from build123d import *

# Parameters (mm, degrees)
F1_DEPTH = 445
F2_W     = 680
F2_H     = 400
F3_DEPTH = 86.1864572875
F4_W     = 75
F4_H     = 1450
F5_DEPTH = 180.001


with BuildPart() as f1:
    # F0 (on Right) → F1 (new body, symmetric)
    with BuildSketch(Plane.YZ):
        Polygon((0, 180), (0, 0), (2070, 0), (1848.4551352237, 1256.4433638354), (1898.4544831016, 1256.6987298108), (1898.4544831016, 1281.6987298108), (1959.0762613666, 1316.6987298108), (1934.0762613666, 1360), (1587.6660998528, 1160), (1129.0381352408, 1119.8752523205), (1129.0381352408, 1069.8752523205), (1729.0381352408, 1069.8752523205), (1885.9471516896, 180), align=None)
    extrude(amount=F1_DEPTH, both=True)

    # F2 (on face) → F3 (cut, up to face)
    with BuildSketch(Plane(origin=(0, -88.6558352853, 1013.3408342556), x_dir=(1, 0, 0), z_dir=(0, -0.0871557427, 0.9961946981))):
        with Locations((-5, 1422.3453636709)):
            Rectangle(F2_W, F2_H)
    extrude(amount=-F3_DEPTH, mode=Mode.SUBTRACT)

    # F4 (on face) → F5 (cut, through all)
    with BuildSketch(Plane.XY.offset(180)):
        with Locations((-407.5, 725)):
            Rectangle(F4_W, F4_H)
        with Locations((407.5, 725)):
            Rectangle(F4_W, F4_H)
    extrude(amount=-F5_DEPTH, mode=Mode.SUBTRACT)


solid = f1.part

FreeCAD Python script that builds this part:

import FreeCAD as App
import Part
import Sketcher
Q = App.Units.Quantity

doc = App.newDocument("Part")
body = doc.addObject("PartDesign::Body", "Body")

# Sketch on YZ plane
sketch1 = body.newObject("Sketcher::SketchObject", "Sketch")
sketch1.AttachmentSupport = (doc.getObject("YZ_Plane"), [""])
sketch1.MapMode = "FlatFace"
sketch1.addGeometry([
    Part.LineSegment(App.Vector(0, 180, 0), App.Vector(0, 0, 0)),  # 0
    Part.LineSegment(App.Vector(0, 0, 0), App.Vector(2070, 0, 0)),  # 1
    Part.LineSegment(App.Vector(2070, 0, 0), App.Vector(1848, 1256, 0)),  # 2
    Part.LineSegment(App.Vector(1848, 1256, 0), App.Vector(1898, 1257, 0)),  # 3
    Part.LineSegment(App.Vector(1898, 1257, 0), App.Vector(1898, 1282, 0)),  # 4
    Part.LineSegment(App.Vector(1898, 1282, 0), App.Vector(1959, 1317, 0)),  # 5
    Part.LineSegment(App.Vector(1959, 1317, 0), App.Vector(1934, 1360, 0)),  # 6
    Part.LineSegment(App.Vector(1934, 1360, 0), App.Vector(1588, 1160, 0)),  # 7
    Part.LineSegment(App.Vector(1588, 1160, 0), App.Vector(1129, 1120, 0)),  # 8
    Part.LineSegment(App.Vector(1129, 1120, 0), App.Vector(1129, 1070, 0)),  # 9
    Part.LineSegment(App.Vector(1129, 1070, 0), App.Vector(1729, 1070, 0)),  # 10
    Part.LineSegment(App.Vector(1729, 1070, 0), App.Vector(1886, 180, 0)),  # 11
    Part.LineSegment(App.Vector(1886, 180, 0), App.Vector(0, 180, 0)),  # 12
], False)
sketch1.addConstraint([
    Sketcher.Constraint("Coincident", 0, 2, 1, 1),
    Sketcher.Constraint("Coincident", 1, 2, 2, 1),
    Sketcher.Constraint("Coincident", 2, 2, 3, 1),
    Sketcher.Constraint("Coincident", 3, 2, 4, 1),
    Sketcher.Constraint("Coincident", 4, 2, 5, 1),
    Sketcher.Constraint("Coincident", 5, 2, 6, 1),
    Sketcher.Constraint("Coincident", 6, 2, 7, 1),
    Sketcher.Constraint("Coincident", 7, 2, 8, 1),
    Sketcher.Constraint("Coincident", 8, 2, 9, 1),
    Sketcher.Constraint("Coincident", 9, 2, 10, 1),
    Sketcher.Constraint("Coincident", 10, 2, 11, 1),
    Sketcher.Constraint("Coincident", 11, 2, 12, 1),
    Sketcher.Constraint("Coincident", 12, 2, 0, 1),
    Sketcher.Constraint("Vertical", 0),
    Sketcher.Constraint("Horizontal", 1),
    Sketcher.Constraint("Vertical", 4),
    Sketcher.Constraint("Vertical", 9),
    Sketcher.Constraint("Horizontal", 10),
    Sketcher.Constraint("Horizontal", 12),
    Sketcher.Constraint("Coincident", 0, 2, -1, 1),
    Sketcher.Constraint("Perpendicular", 5, 6),
    Sketcher.Constraint("Perpendicular", 6, 7),
    Sketcher.Constraint("Parallel", 2, 11),
    Sketcher.Constraint("Equal", 3, 6),
    Sketcher.Constraint("DistanceX", 1, 1, 1, 2, Q("2070 mm")),
    Sketcher.Constraint("DistanceX", 10, 1, 10, 2, Q("600 mm")),
    Sketcher.Constraint("DistanceY", 0, 2, 0, 1, Q("180 mm")),
    Sketcher.Constraint("DistanceY", 4, 1, 4, 2, Q("25 mm")),
    Sketcher.Constraint("DistanceY", 9, 2, 9, 1, Q("50 mm")),
    Sketcher.Constraint("Angle", 2, Q("100 deg")),
    Sketcher.Constraint("Angle", 5, Q("30 deg")),
    Sketcher.Constraint("Angle", 8, Q("-175 deg")),
    Sketcher.Constraint("Distance", 3, Q("50 mm")),
    Sketcher.Constraint("Distance", 5, Q("70 mm")),
    Sketcher.Constraint("Distance", 7, Q("400 mm")),
    Sketcher.Constraint("DistanceY", -1, 1, 6, 2, Q("1360 mm")),
    Sketcher.Constraint("DistanceX", 8, 2, 2, 2, Q("719.417 mm")),
    Sketcher.Constraint("DistanceX", 12, 2, 12, 1, Q("1885.947152 mm")),
])
pad1 = body.newObject("PartDesign::Pad", "Pad")
pad1.Profile = sketch1
pad1.Length = 890
pad1.Midplane = True

# Sketch on an angled plane
sketch2 = body.newObject("Sketcher::SketchObject", "Sketch001")
sketch2.Placement = App.Placement(App.Vector(0, -88.655835, 1013.340834), App.Rotation(App.Vector(1, 0, 0), App.Vector(0, 0.996194698, 0.087155743), App.Vector(0, -0.087155743, 0.996194698), "ZXY"))
sketch2.addGeometry([
    Part.LineSegment(App.Vector(-345, 1622, 0), App.Vector(-345, 1222, 0)),
    Part.LineSegment(App.Vector(-345, 1222, 0), App.Vector(335, 1222, 0)),
    Part.LineSegment(App.Vector(335, 1222, 0), App.Vector(335, 1622, 0)),
    Part.LineSegment(App.Vector(335, 1622, 0), App.Vector(-345, 1622, 0)),
], False)
sketch2.addConstraint([
    Sketcher.Constraint("Coincident", 0, 2, 1, 1),
    Sketcher.Constraint("Coincident", 1, 2, 2, 1),
    Sketcher.Constraint("Coincident", 2, 2, 3, 1),
    Sketcher.Constraint("Coincident", 3, 2, 0, 1),
    Sketcher.Constraint("Vertical", 0),
    Sketcher.Constraint("Horizontal", 1),
    Sketcher.Constraint("Vertical", 2),
    Sketcher.Constraint("Horizontal", 3),
    Sketcher.Constraint("DistanceX", 1, 1, 1, 2, Q("680 mm")),
    Sketcher.Constraint("DistanceY", 0, 2, 0, 1, Q("400 mm")),
    Sketcher.Constraint("DistanceX", 0, 2, -1, 1, Q("345 mm")),
    Sketcher.Constraint("DistanceY", -1, 1, 0, 2, Q("1222.345364 mm")),
])
pocket1 = body.newObject("PartDesign::Pocket", "Pocket")
pocket1.Profile = sketch2
pocket1.Length = 86.186457

# Sketch on XY plane
sketch3 = body.newObject("Sketcher::SketchObject", "Sketch002")
sketch3.AttachmentSupport = (doc.getObject("XY_Plane"), [""])
sketch3.MapMode = "FlatFace"
sketch3.AttachmentOffset = App.Placement(App.Vector(0, 0, 180), App.Rotation())
sketch3.addGeometry([
    Part.LineSegment(App.Vector(-445, 1450, 0), App.Vector(-445, 0, 0)),  # 0
    Part.LineSegment(App.Vector(-445, 0, 0), App.Vector(-370, 0, 0)),  # 1
    Part.LineSegment(App.Vector(-370, 0, 0), App.Vector(-370, 1450, 0)),  # 2
    Part.LineSegment(App.Vector(-370, 1450, 0), App.Vector(-445, 1450, 0)),  # 3
    Part.LineSegment(App.Vector(370, 1450, 0), App.Vector(370, 0, 0)),  # 4
    Part.LineSegment(App.Vector(370, 0, 0), App.Vector(445, 0, 0)),  # 5
    Part.LineSegment(App.Vector(445, 0, 0), App.Vector(445, 1450, 0)),  # 6
    Part.LineSegment(App.Vector(445, 1450, 0), App.Vector(370, 1450, 0)),  # 7
], False)
sketch3.addConstraint([
    Sketcher.Constraint("Coincident", 0, 2, 1, 1),
    Sketcher.Constraint("Coincident", 1, 2, 2, 1),
    Sketcher.Constraint("Coincident", 2, 2, 3, 1),
    Sketcher.Constraint("Coincident", 3, 2, 0, 1),
    Sketcher.Constraint("Coincident", 4, 2, 5, 1),
    Sketcher.Constraint("Coincident", 5, 2, 6, 1),
    Sketcher.Constraint("Coincident", 6, 2, 7, 1),
    Sketcher.Constraint("Coincident", 7, 2, 4, 1),
    Sketcher.Constraint("Vertical", 0),
    Sketcher.Constraint("Horizontal", 1),
    Sketcher.Constraint("Vertical", 2),
    Sketcher.Constraint("Horizontal", 3),
    Sketcher.Constraint("Vertical", 4),
    Sketcher.Constraint("Horizontal", 5),
    Sketcher.Constraint("Vertical", 6),
    Sketcher.Constraint("Horizontal", 7),
    Sketcher.Constraint("Symmetric", 1, 2, 4, 2, -1, 1),
    Sketcher.Constraint("Symmetric", 0, 2, 5, 2, -2),
    Sketcher.Constraint("Horizontal", 3, 2, 6, 2),
    Sketcher.Constraint("DistanceX", 1, 1, 1, 2, Q("75 mm")),
    Sketcher.Constraint("DistanceY", 0, 2, 0, 1, Q("1450 mm")),
    Sketcher.Constraint("DistanceX", 0, 2, -1, 1, Q("445 mm")),
])
pocket2 = body.newObject("PartDesign::Pocket", "Pocket001")
pocket2.Profile = sketch3
pocket2.Type = "ThroughAll"

doc.recompute()
